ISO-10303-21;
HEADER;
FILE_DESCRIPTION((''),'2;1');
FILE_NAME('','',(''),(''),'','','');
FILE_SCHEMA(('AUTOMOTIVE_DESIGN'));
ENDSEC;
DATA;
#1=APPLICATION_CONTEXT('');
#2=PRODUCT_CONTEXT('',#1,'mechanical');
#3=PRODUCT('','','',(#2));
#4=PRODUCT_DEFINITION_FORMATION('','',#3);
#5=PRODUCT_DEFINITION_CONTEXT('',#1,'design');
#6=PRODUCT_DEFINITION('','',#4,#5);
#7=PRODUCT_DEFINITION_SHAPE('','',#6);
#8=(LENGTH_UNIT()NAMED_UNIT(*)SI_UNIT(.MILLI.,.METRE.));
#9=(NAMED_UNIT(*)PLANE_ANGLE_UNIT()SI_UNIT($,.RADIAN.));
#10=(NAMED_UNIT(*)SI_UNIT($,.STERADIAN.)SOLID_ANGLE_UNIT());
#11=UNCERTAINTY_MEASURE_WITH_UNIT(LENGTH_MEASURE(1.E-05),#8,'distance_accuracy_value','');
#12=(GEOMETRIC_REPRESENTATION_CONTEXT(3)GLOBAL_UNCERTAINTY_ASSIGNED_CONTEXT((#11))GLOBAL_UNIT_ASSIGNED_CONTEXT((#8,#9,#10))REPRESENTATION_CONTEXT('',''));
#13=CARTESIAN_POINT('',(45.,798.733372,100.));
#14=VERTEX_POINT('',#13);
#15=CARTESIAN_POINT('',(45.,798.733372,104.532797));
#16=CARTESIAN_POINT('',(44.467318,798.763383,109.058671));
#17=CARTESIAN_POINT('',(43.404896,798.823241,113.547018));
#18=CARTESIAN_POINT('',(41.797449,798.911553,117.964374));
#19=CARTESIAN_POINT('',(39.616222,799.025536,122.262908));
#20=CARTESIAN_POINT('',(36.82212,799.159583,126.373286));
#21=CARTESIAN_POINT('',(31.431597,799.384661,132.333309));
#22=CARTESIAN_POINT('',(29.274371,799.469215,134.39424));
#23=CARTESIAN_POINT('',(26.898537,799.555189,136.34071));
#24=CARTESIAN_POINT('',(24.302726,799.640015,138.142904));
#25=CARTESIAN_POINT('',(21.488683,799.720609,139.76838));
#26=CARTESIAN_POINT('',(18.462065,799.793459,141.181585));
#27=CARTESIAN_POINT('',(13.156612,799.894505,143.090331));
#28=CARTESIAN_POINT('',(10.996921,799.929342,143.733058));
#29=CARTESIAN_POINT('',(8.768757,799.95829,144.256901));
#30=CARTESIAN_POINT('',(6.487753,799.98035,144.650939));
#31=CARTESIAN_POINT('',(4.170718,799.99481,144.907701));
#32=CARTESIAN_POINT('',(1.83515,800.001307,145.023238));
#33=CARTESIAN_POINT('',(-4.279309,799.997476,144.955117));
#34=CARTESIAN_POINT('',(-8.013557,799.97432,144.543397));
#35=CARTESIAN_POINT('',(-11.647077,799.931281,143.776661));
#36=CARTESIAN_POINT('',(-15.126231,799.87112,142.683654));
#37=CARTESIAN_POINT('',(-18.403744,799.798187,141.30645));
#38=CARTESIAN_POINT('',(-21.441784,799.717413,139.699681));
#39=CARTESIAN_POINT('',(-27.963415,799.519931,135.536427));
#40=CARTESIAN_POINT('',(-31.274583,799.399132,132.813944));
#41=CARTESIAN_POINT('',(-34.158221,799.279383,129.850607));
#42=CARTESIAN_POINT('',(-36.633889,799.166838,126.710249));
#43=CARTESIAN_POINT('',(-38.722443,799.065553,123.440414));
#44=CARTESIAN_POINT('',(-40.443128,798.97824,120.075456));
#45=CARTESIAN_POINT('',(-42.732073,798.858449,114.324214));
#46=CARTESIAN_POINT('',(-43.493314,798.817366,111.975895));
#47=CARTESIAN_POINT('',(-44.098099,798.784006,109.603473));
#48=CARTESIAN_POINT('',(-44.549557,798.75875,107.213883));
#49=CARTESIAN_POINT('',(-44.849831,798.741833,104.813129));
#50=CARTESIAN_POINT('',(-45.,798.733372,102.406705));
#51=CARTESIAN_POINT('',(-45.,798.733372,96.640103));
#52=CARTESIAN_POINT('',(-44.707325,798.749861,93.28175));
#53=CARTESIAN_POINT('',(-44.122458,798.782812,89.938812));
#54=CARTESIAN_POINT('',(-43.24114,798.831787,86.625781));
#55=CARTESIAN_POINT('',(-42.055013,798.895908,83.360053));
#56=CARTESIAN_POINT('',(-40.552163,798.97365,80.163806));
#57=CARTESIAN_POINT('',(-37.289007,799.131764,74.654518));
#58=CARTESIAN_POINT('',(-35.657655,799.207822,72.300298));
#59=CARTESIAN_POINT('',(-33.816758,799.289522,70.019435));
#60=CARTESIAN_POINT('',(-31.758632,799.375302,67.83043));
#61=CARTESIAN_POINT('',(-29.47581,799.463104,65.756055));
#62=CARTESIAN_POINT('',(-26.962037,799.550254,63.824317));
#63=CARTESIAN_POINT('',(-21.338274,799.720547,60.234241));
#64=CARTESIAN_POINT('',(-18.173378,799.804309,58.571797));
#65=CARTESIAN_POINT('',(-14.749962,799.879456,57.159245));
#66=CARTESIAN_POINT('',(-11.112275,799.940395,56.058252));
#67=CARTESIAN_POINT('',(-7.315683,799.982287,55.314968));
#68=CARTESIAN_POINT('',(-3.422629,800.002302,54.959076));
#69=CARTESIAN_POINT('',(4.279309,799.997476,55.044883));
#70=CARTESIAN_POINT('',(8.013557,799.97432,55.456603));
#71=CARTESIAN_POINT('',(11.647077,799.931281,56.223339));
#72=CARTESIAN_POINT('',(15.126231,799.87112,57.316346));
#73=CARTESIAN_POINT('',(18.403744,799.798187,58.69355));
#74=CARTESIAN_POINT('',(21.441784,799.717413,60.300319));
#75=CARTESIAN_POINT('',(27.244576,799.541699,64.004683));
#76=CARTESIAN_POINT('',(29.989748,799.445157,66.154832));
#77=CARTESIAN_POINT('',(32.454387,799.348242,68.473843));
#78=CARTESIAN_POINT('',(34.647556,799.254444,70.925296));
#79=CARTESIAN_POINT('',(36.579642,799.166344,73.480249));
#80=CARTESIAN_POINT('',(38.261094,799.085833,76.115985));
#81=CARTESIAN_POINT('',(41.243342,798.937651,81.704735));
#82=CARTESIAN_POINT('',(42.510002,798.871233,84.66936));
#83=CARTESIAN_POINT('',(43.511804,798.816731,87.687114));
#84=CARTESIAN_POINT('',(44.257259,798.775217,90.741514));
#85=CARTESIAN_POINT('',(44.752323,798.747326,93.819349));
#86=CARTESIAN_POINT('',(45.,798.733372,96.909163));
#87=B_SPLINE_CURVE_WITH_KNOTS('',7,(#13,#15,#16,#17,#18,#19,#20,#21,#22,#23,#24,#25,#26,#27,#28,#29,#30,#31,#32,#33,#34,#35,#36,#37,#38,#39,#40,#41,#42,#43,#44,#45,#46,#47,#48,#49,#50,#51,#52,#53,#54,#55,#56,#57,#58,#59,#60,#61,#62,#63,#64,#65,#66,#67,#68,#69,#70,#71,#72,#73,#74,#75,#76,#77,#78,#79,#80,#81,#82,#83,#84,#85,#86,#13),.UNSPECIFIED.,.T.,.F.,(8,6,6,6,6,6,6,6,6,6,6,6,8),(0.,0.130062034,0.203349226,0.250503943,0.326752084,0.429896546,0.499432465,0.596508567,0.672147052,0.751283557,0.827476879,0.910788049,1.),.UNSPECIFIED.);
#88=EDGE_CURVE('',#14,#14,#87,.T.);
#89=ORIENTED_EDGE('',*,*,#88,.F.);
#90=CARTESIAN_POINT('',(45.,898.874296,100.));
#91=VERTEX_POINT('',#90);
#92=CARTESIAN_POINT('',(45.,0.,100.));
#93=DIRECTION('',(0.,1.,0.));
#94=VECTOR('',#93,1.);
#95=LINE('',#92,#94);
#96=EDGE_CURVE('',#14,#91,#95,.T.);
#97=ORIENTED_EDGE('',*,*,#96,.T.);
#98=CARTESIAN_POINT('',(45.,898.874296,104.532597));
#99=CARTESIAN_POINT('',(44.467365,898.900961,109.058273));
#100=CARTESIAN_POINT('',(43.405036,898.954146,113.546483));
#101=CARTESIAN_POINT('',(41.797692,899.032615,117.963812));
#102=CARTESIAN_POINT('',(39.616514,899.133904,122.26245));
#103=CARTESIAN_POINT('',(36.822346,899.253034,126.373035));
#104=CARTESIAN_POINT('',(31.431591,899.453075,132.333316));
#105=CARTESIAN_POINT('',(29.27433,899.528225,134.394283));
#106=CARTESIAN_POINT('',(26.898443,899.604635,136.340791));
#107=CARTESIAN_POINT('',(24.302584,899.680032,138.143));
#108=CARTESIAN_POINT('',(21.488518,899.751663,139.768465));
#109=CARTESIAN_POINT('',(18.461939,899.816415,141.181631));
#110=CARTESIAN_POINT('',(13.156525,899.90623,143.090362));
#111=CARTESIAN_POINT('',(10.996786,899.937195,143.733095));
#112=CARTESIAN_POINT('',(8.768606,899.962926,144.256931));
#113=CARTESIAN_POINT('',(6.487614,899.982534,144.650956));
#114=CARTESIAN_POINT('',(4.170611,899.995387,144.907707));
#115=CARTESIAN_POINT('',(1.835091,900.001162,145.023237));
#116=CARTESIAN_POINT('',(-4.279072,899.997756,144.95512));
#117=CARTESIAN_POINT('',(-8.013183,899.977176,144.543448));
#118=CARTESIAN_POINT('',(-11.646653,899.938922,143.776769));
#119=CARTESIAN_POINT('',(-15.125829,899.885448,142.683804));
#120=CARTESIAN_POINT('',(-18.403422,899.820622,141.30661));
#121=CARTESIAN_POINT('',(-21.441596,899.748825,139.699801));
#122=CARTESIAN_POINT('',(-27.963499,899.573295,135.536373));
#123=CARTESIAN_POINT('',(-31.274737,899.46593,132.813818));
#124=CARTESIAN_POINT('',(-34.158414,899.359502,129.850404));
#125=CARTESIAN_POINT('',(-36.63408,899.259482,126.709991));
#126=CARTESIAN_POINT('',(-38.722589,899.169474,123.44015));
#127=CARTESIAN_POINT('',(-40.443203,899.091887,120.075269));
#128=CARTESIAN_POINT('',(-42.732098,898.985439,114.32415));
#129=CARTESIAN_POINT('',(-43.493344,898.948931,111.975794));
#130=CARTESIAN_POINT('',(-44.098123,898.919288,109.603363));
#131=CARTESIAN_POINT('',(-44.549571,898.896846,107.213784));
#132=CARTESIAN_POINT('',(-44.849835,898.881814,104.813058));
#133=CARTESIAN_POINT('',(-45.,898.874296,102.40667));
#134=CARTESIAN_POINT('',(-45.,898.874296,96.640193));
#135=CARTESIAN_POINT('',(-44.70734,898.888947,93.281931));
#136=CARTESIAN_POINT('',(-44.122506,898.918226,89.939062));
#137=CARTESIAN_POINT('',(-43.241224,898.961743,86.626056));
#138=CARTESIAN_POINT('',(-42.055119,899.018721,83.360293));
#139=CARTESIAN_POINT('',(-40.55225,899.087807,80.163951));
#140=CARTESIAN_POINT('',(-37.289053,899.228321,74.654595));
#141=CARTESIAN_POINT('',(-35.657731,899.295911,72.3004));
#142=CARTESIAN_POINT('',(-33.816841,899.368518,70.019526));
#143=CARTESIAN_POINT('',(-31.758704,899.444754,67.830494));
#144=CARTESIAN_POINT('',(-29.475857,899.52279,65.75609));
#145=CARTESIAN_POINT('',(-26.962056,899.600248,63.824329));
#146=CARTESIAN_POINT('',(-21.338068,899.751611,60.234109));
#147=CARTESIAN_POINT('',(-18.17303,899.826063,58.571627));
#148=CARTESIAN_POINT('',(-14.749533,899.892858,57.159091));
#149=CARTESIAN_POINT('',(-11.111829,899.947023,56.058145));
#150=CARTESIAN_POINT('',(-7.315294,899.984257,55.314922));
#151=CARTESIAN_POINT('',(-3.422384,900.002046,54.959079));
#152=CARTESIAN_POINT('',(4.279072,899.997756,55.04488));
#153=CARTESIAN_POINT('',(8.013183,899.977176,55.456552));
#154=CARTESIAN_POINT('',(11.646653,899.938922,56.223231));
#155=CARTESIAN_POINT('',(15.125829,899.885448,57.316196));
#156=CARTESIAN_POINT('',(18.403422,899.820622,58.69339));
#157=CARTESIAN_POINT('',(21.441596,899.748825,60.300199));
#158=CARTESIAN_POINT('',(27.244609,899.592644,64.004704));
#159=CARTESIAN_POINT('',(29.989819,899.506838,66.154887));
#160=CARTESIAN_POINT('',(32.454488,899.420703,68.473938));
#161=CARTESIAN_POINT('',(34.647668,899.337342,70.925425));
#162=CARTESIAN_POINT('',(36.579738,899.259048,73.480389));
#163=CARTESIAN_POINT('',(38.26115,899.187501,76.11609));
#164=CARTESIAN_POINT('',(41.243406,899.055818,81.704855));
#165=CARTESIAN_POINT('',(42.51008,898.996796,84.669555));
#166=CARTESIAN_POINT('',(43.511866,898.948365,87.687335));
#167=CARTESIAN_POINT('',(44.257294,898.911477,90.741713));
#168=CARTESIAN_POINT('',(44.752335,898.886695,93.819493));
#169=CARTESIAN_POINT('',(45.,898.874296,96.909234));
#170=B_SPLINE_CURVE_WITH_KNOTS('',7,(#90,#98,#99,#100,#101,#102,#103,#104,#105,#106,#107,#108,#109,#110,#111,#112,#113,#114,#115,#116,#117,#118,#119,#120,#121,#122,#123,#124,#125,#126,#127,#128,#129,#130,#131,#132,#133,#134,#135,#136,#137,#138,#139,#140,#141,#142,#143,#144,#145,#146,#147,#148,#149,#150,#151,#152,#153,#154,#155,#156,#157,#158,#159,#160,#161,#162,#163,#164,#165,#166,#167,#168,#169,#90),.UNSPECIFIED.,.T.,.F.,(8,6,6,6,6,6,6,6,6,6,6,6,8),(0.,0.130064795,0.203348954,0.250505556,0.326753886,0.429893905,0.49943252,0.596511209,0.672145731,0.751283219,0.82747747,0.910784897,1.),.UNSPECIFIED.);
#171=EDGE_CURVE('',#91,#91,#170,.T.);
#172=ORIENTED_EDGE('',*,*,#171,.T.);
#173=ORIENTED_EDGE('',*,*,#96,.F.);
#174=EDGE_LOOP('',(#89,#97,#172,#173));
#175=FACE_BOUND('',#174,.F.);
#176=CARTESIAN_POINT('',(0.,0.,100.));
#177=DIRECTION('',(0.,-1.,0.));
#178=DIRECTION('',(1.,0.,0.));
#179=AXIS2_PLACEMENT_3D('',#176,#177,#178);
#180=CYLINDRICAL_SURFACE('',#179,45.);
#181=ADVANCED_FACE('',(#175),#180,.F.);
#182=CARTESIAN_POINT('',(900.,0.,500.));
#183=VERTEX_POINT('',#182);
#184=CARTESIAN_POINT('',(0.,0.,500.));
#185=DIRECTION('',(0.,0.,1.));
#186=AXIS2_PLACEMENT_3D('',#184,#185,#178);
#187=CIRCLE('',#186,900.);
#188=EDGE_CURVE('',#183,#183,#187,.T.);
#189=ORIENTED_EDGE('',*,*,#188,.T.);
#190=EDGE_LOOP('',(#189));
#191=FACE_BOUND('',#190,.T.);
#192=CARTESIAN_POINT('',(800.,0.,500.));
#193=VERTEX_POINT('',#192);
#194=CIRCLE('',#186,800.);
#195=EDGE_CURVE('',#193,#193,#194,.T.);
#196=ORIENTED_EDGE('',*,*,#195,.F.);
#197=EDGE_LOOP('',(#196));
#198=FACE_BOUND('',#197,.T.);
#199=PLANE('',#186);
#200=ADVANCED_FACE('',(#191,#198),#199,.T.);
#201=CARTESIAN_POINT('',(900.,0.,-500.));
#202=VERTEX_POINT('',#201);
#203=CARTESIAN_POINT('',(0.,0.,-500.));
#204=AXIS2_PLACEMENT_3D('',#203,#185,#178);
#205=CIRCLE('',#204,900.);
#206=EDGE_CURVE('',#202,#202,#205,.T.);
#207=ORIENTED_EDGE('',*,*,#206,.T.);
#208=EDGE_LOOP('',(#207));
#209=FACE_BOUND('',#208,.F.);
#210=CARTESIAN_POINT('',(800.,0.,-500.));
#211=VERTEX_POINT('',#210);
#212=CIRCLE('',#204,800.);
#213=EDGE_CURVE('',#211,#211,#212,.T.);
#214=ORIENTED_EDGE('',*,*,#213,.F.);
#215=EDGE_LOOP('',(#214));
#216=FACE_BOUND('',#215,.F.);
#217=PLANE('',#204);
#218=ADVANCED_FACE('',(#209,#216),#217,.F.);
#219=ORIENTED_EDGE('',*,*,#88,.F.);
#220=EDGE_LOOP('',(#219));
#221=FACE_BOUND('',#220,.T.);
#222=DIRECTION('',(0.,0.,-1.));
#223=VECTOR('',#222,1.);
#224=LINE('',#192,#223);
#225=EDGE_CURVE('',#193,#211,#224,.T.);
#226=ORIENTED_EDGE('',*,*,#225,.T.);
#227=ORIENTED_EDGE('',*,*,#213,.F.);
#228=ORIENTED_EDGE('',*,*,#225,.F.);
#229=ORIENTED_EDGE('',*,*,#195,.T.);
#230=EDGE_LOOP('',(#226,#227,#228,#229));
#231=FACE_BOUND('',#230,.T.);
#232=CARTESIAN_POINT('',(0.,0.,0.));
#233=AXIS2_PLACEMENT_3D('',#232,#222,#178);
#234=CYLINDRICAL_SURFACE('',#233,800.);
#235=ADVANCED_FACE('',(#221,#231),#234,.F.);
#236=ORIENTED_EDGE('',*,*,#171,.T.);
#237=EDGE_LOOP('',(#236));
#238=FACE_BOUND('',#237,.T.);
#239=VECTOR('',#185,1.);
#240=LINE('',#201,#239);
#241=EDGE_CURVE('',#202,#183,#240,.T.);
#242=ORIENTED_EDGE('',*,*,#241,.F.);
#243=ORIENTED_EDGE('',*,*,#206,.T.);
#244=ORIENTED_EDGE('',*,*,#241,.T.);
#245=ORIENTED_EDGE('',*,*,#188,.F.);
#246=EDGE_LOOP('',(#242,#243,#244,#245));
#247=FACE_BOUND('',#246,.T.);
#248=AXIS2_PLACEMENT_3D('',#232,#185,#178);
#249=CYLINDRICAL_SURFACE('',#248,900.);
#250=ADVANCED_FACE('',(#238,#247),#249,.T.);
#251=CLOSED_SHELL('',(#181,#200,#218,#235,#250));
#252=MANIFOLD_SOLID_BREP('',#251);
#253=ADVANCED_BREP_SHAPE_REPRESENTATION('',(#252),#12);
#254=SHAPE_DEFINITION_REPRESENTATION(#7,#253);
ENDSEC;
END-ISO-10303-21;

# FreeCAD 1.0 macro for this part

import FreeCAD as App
import Part
import Sketcher

V = App.Vector
Q = App.Units.Quantity

doc = App.newDocument("Part")
body = doc.addObject("PartDesign::Body", "Body")

sketch1 = doc.addObject("Sketcher::SketchObject", "Sketch")
body.addObject(sketch1)
sketch1.AttachmentSupport = (doc.XY_Plane, [""])
sketch1.MapMode = "FlatFace"
sketch1.addGeometry([
    Part.Circle(V(0, 0, 0), V(0, 0, 1), 900),
    Part.Circle(V(0, 0, 0), V(0, 0, 1), 800),
], False)
sketch1.addConstraint([
    Sketcher.Constraint("Coincident", 0, 3, -1, 1),
    Sketcher.Constraint("Coincident", 1, 3, -1, 1),
    Sketcher.Constraint("Diameter", 0, Q("1800 mm")),
    Sketcher.Constraint("Diameter", 1, Q("1600 mm")),
])
pad1 = doc.addObject("PartDesign::Pad", "Pad")
body.addObject(pad1)
pad1.Profile = sketch1
pad1.Length = 1000
pad1.Midplane = True

sketch2 = doc.addObject("Sketcher::SketchObject", "Sketch001")
body.addObject(sketch2)
sketch2.AttachmentSupport = (doc.XZ_Plane, [""])
sketch2.MapMode = "FlatFace"
sketch2.addGeometry(Part.Circle(V(0, 100, 0), V(0, 0, 1), 45), False)
sketch2.addConstraint([
    Sketcher.Constraint("PointOnObject", 0, 3, -2),
    Sketcher.Constraint("Diameter", 0, Q("90 mm")),
    Sketcher.Constraint("DistanceY", -1, 1, 0, 3, Q("100 mm")),
])
pocket1 = doc.addObject("PartDesign::Pocket", "Pocket")
body.addObject(pocket1)
pocket1.Profile = sketch2
pocket1.Length = 1000

doc.recompute()
